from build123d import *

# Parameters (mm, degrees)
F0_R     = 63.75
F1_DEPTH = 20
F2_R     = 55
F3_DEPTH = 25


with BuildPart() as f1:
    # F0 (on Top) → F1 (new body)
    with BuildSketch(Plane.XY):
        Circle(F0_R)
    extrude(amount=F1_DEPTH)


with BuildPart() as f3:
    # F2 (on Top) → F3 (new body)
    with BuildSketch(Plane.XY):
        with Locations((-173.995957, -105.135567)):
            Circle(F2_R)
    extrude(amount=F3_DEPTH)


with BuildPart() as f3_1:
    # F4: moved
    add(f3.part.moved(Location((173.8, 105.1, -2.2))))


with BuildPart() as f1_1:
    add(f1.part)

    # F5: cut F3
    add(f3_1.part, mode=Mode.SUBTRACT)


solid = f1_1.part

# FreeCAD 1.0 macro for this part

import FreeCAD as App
import Part
import Sketcher
from FreeCAD import Vector
Q = App.Units.Quantity

doc = App.newDocument("Part")
params = doc.addObject("Spreadsheet::Sheet", "Params")
for row, (alias, value) in enumerate([
    ("sketch1_diameter", "127.5 mm"),
    ("pad1_length", "20 mm"),
    ("sketch2_diameter", "110 mm"),
    ("pad2_length", "25 mm"),
], start=1):
    params.set(f"A{row}", alias)
    params.set(f"B{row}", "=" + value)
    params.setAlias(f"B{row}", alias)

body = doc.addObject("PartDesign::Body", "Body")

# Sketch on XY plane
sketch1 = body.newObject("Sketcher::SketchObject", "Sketch")
sketch1.AttachmentSupport = (doc.getObject("XY_Plane"), [""])
sketch1.MapMode = "FlatFace"
sketch1.addGeometry(Part.Circle(Vector(0, 0, 0), Vector(0, 0, 1), 64), False)
sketch1.addConstraint(Sketcher.Constraint("Coincident", 0, 3, -1, 1))
sketch1.addConstraint(Sketcher.Constraint("Diameter", 0, Q("127.5 mm")))
sketch1.setExpression("Constraints[1]", "Params.sketch1_diameter")
pad1 = body.newObject("PartDesign::Pad", "Pad")
pad1.Profile = sketch1
pad1.setExpression("Length", "Params.pad1_length")
body2 = doc.addObject("PartDesign::Body", "Body001")

# Sketch on XY plane
sketch2 = body2.newObject("Sketcher::SketchObject", "Sketch001")
sketch2.AttachmentSupport = (doc.getObject("XY_Plane001"), [""])
sketch2.MapMode = "FlatFace"
sketch2.addGeometry(Part.Circle(Vector(-174, -105, 0), Vector(0, 0, 1), 55), False)
sketch2.addConstraint(Sketcher.Constraint("Diameter", 0, Q("110 mm")))
sketch2.addConstraint(Sketcher.Constraint("DistanceX", 0, 3, -1, 1, Q("173.995957 mm")))
sketch2.addConstraint(Sketcher.Constraint("DistanceY", 0, 3, -1, 1, Q("105.135567 mm")))
sketch2.setExpression("Constraints[0]", "Params.sketch2_diameter")
pad2 = body2.newObject("PartDesign::Pad", "Pad001")
pad2.Profile = sketch2
pad2.setExpression("Length", "Params.pad2_length")
body3 = doc.addObject("PartDesign::Body", "Body002")
doc.recompute()

body2.Placement = App.Placement(Vector(173.8, 105.1, -2.2), App.Rotation(Vector(0, 0, 1), 0))
boolean = body3.newObject("PartDesign::Boolean", "Boolean")
boolean.Type = "Fuse"
boolean.addObjects([body2])
doc.recompute()

boolean2 = body.newObject("PartDesign::Boolean", "Boolean001")
boolean2.Type = "Cut"
boolean2.addObjects([body3])

doc.recompute()
